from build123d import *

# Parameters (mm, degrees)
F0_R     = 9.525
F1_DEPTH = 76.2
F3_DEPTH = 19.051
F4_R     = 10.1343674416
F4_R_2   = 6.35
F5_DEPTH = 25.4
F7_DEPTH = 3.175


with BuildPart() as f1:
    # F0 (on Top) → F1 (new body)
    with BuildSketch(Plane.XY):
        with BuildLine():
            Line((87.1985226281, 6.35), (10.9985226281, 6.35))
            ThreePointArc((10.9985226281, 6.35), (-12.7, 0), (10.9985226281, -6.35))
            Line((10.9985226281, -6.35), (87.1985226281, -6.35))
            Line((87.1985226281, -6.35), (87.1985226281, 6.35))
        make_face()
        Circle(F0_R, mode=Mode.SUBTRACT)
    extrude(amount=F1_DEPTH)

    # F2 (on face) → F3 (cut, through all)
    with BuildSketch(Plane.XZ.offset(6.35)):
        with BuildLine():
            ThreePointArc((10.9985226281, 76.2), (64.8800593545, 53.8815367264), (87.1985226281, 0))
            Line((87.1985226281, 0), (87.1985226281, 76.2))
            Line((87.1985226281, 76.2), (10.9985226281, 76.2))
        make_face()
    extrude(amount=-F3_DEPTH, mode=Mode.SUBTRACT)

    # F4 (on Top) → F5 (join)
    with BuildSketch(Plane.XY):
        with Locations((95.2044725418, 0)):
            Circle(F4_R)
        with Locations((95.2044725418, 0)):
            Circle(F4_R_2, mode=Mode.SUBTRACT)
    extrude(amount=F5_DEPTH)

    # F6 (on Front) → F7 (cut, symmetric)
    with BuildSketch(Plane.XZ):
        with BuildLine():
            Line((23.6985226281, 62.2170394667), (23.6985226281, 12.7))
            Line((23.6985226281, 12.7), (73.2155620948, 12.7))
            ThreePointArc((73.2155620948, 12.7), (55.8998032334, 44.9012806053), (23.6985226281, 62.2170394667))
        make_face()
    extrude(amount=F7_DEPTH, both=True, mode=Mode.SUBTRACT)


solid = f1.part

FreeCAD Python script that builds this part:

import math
import FreeCAD as App
import Part
import Sketcher
Q = App.Units.Quantity

doc = App.newDocument("Part")
params = doc.addObject("Spreadsheet::Sheet", "Params")
for row, (alias, value) in enumerate([
    ("sketch1_radius", "0.5 in"),
    ("sketch1_diameter", "0.75 in"),
    ("sketch1_width", "3 in"),
    ("sketch1_height", "0.5 in"),
    ("pad1_length", "3 in"),
    ("sketch2_radius", "3 in"),
    ("sketch3_diameter", "0.5 in"),
    ("pad2_length", "1 in"),
    ("sketch4_radius", "2.5 in"),
    ("pocket2_length", "0.25 in"),
], start=1):
    params.set(f"A{row}", alias)
    params.set(f"B{row}", "=" + value)
    params.setAlias(f"B{row}", alias)

body = doc.addObject("PartDesign::Body", "Body")

sketch1 = body.newObject("Sketcher::SketchObject", "Sketch")
sketch1.AttachmentSupport = (doc.getObject("XY_Plane"), [""])
sketch1.MapMode = "FlatFace"
sketch1.addGeometry([
    Part.LineSegment(App.Vector(87.198523, 6.35, 0), App.Vector(10.998523, 6.35, 0)),
    Part.ArcOfCircle(Part.Circle(App.Vector(0, 0, 0), App.Vector(0, 0, 1), 12.7), math.radians(30), math.radians(330)),
    Part.LineSegment(App.Vector(10.998523, -6.35, 0), App.Vector(87.198523, -6.35, 0)),
    Part.LineSegment(App.Vector(87.198523, -6.35, 0), App.Vector(87.198523, 6.35, 0)),
    Part.Circle(App.Vector(0, 0, 0), App.Vector(0, 0, 1), 9.525),
], False)
sketch1.addConstraint([
    Sketcher.Constraint("Coincident", 0, 2, 1, 1),
    Sketcher.Constraint("Coincident", 1, 2, 2, 1),
    Sketcher.Constraint("Coincident", 2, 2, 3, 1),
    Sketcher.Constraint("Coincident", 3, 2, 0, 1),
    Sketcher.Constraint("Horizontal", 0),
    Sketcher.Constraint("Horizontal", 2),
    Sketcher.Constraint("Vertical", 3),
    Sketcher.Constraint("Coincident", 1, 3, -1, 1),
    Sketcher.Constraint("Coincident", 4, 3, -1, 1),
    Sketcher.Constraint("Vertical", 0, 2, 1, 2),
    Sketcher.Constraint("Radius", 1, Q("0.5 in")),
    Sketcher.Constraint("Diameter", 4, Q("0.75 in")),
    Sketcher.Constraint("DistanceX", 0, 2, 0, 1, Q("3 in")),
    Sketcher.Constraint("DistanceY", 3, 1, 3, 2, Q("0.5 in")),
])
sketch1.setExpression("Constraints[10]", "Params.sketch1_radius")
sketch1.setExpression("Constraints[11]", "Params.sketch1_diameter")
sketch1.setExpression("Constraints[12]", "Params.sketch1_width")
sketch1.setExpression("Constraints[13]", "Params.sketch1_height")
pad1 = body.newObject("PartDesign::Pad", "Pad")
pad1.Profile = sketch1
pad1.setExpression("Length", "Params.pad1_length")

sketch2 = body.newObject("Sketcher::SketchObject", "Sketch001")
sketch2.AttachmentSupport = (doc.getObject("XZ_Plane"), [""])
sketch2.MapMode = "FlatFace"
sketch2.AttachmentOffset = App.Placement(App.Vector(0, 0, 0.25 * 25.4), App.Rotation())
sketch2.addGeometry([
    Part.ArcOfCircle(Part.Circle(App.Vector(10.998523, 0, 0), App.Vector(0, 0, 1), 76.2), math.radians(0), math.radians(90)),
    Part.LineSegment(App.Vector(87.198523, 0, 0), App.Vector(87.198523, 76.2, 0)),
    Part.LineSegment(App.Vector(87.198523, 76.2, 0), App.Vector(10.998523, 76.2, 0)),
], False)
sketch2.addConstraint([
    Sketcher.Constraint("Tangent", 0, 1, 1, 1),
    Sketcher.Constraint("Coincident", 1, 2, 2, 1),
    Sketcher.Constraint("Tangent", 2, 2, 0, 2),
    Sketcher.Constraint("Vertical", 1),
    Sketcher.Constraint("Horizontal", 2),
    Sketcher.Constraint("PointOnObject", 0, 3, -1),
    Sketcher.Constraint("Radius", 0, Q("3 in")),
    Sketcher.Constraint("DistanceX", -1, 1, 0, 3, 10.998523),
])
sketch2.setExpression("Constraints[6]", "Params.sketch2_radius")
pocket1 = body.newObject("PartDesign::Pocket", "Pocket")
pocket1.Profile = sketch2
pocket1.Type = "ThroughAll"

sketch3 = body.newObject("Sketcher::SketchObject", "Sketch002")
sketch3.AttachmentSupport = (doc.getObject("XY_Plane"), [""])
sketch3.MapMode = "FlatFace"
sketch3.addGeometry([
    Part.Circle(App.Vector(95.204473, 0, 0), App.Vector(0, 0, 1), 10.134367),
    Part.Circle(App.Vector(95.204473, 0, 0), App.Vector(0, 0, 1), 6.35),
], False)
sketch3.addConstraint([
    Sketcher.Constraint("Coincident", 1, 3, 0, 3),
    Sketcher.Constraint("PointOnObject", 0, 3, -1),
    Sketcher.Constraint("Diameter", 1, Q("0.5 in")),
    Sketcher.Constraint("Diameter", 0, 20.268735),
    Sketcher.Constraint("DistanceX", -1, 1, 0, 3, 95.204473),
])
sketch3.setExpression("Constraints[2]", "Params.sketch3_diameter")
pad2 = body.newObject("PartDesign::Pad", "Pad001")
pad2.Profile = sketch3
pad2.setExpression("Length", "Params.pad2_length")

sketch4 = body.newObject("Sketcher::SketchObject", "Sketch003")
sketch4.AttachmentSupport = (doc.getObject("XZ_Plane"), [""])
sketch4.MapMode = "FlatFace"
sketch4.addGeometry([
    Part.LineSegment(App.Vector(23.698523, 62.217039, 0), App.Vector(23.698523, 12.7, 0)),
    Part.LineSegment(App.Vector(23.698523, 12.7, 0), App.Vector(73.215562, 12.7, 0)),
    Part.ArcOfCircle(Part.Circle(App.Vector(10.998523, 0, 0), App.Vector(0, 0, 1), 63.5), math.radians(11.536959), math.radians(78.463041)),
], False)
sketch4.addConstraint([
    Sketcher.Constraint("Coincident", 0, 2, 1, 1),
    Sketcher.Constraint("Coincident", 1, 2, 2, 1),
    Sketcher.Constraint("Coincident", 2, 2, 0, 1),
    Sketcher.Constraint("Vertical", 0),
    Sketcher.Constraint("Horizontal", 1),
    Sketcher.Constraint("PointOnObject", 2, 3, -1),
    Sketcher.Constraint("Equal", 1, 0),
    Sketcher.Constraint("Radius", 2, Q("2.5 in")),
    Sketcher.Constraint("DistanceY", -1, 1, 0, 2, Q("0.5 in")),
    Sketcher.Constraint("DistanceX", -1, 1, 2, 3, 10.998523),
])
sketch4.setExpression("Constraints[7]", "Params.sketch4_radius")
pocket2 = body.newObject("PartDesign::Pocket", "Pocket001")
pocket2.Profile = sketch4
pocket2.setExpression("Length", "Params.pocket2_length")
pocket2.Midplane = True

doc.recompute()
